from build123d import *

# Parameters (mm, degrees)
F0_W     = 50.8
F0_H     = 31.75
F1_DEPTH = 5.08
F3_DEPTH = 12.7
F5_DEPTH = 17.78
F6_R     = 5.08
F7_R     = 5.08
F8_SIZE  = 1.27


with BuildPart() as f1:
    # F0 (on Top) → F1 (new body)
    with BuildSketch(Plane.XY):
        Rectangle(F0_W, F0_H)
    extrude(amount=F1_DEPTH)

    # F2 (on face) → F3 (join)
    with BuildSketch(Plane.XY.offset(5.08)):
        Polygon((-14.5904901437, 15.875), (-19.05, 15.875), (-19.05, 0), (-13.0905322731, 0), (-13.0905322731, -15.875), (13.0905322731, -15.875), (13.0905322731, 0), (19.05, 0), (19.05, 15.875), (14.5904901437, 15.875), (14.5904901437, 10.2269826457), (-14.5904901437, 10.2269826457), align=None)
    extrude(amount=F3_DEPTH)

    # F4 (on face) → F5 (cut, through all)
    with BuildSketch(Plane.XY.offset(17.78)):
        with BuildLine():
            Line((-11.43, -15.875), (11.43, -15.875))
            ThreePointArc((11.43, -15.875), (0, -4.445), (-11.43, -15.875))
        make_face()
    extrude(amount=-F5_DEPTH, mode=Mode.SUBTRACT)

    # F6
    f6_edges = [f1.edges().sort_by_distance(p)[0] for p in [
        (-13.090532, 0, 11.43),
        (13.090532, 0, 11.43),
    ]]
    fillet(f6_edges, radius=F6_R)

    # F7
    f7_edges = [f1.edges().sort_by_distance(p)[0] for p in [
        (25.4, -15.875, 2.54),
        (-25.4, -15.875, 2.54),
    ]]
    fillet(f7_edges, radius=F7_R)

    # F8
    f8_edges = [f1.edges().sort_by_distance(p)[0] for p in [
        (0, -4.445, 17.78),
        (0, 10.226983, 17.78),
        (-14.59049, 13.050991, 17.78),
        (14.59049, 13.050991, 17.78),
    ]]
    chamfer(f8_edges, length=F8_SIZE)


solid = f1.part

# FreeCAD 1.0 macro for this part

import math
import FreeCAD as App
import Part
import Sketcher

V = App.Vector
Q = App.Units.Quantity


def edges_at(feature, points):
    """Names of the edges that pass closest to the given points."""
    edges = feature.Shape.Edges
    near = lambda p: min(range(len(edges)), key=lambda i: edges[i].distToShape(Part.Vertex(*p))[0])
    return sorted({f"Edge{near(p) + 1}" for p in points})

doc = App.newDocument("Part")
params = doc.addObject("Spreadsheet::Sheet", "Params")
for row, (alias, value) in enumerate([
    ("sketch1_width", "2 in"),
    ("sketch1_height", "1.25 in"),
    ("pad1_length", "0.2 in"),
    ("sketch2_height", "0.625 in"),
    ("pad2_length", "0.5 in"),
    ("sketch3_radius", "0.45 in"),
    ("fillet_radius", "0.2 in"),
    ("fillet2_radius", "0.2 in"),
    ("chamfer_size", "0.05 in"),
], start=1):
    params.set(f"A{row}", alias)
    params.set(f"B{row}", "=" + value)
    params.setAlias(f"B{row}", alias)

body = doc.addObject("PartDesign::Body", "Body")

# Sketch on XY plane
sketch1 = body.newObject("Sketcher::SketchObject", "Sketch")
sketch1.AttachmentSupport = (doc.getObject("XY_Plane"), [""])
sketch1.MapMode = "FlatFace"
sketch1.addGeometry([
    Part.LineSegment(V(-25, 16, 0), V(-25, -16, 0)),
    Part.LineSegment(V(-25, -16, 0), V(25, -16, 0)),
    Part.LineSegment(V(25, -16, 0), V(25, 16, 0)),
    Part.LineSegment(V(25, 16, 0), V(-25, 16, 0)),
], False)
sketch1.addConstraint([
    Sketcher.Constraint("Coincident", 0, 2, 1, 1),
    Sketcher.Constraint("Coincident", 1, 2, 2, 1),
    Sketcher.Constraint("Coincident", 2, 2, 3, 1),
    Sketcher.Constraint("Coincident", 3, 2, 0, 1),
    Sketcher.Constraint("Vertical", 0),
    Sketcher.Constraint("Horizontal", 1),
    Sketcher.Constraint("Vertical", 2),
    Sketcher.Constraint("Horizontal", 3),
    Sketcher.Constraint("Symmetric", 0, 2, 2, 2, -1, 1),
    Sketcher.Constraint("DistanceX", 1, 1, 1, 2, Q("2 in")),
    Sketcher.Constraint("DistanceY", 0, 2, 0, 1, Q("1.25 in")),
])
sketch1.setExpression("Constraints[9]", "Params.sketch1_width")
sketch1.setExpression("Constraints[10]", "Params.sketch1_height")
pad1 = body.newObject("PartDesign::Pad", "Pad")
pad1.Profile = sketch1
pad1.setExpression("Length", "Params.pad1_length")

# Sketch on XY plane
sketch2 = body.newObject("Sketcher::SketchObject", "Sketch001")
sketch2.AttachmentSupport = (doc.getObject("XY_Plane"), [""])
sketch2.MapMode = "FlatFace"
sketch2.AttachmentOffset = App.Placement(V(0, 0, 0.2 * 25.4), App.Rotation())
sketch2.addGeometry([
    Part.LineSegment(V(-14.6, 15.9, 0), V(-19.1, 15.9, 0)),  # 0
    Part.LineSegment(V(-19.1, 15.9, 0), V(-19.1, 0, 0)),  # 1
    Part.LineSegment(V(-19.1, 0, 0), V(-13.1, 0, 0)),  # 2
    Part.LineSegment(V(-13.1, 0, 0), V(-13.1, -15.9, 0)),  # 3
    Part.LineSegment(V(-13.1, -15.9, 0), V(13.1, -15.9, 0)),  # 4
    Part.LineSegment(V(13.1, -15.9, 0), V(13.1, 0, 0)),  # 5
    Part.LineSegment(V(13.1, 0, 0), V(19.1, 0, 0)),  # 6
    Part.LineSegment(V(19.1, 0, 0), V(19.1, 15.9, 0)),  # 7
    Part.LineSegment(V(19.1, 15.9, 0), V(14.6, 15.9, 0)),  # 8
    Part.LineSegment(V(14.6, 15.9, 0), V(14.6, 10.2, 0)),  # 9
    Part.LineSegment(V(14.6, 10.2, 0), V(-14.6, 10.2, 0)),  # 10
    Part.LineSegment(V(-14.6, 10.2, 0), V(-14.6, 15.9, 0)),  # 11
], False)
sketch2.addConstraint([
    Sketcher.Constraint("Coincident", 0, 2, 1, 1),
    Sketcher.Constraint("Coincident", 1, 2, 2, 1),
    Sketcher.Constraint("Coincident", 2, 2, 3, 1),
    Sketcher.Constraint("Coincident", 3, 2, 4, 1),
    Sketcher.Constraint("Coincident", 4, 2, 5, 1),
    Sketcher.Constraint("Coincident", 5, 2, 6, 1),
    Sketcher.Constraint("Coincident", 6, 2, 7, 1),
    Sketcher.Constraint("Coincident", 7, 2, 8, 1),
    Sketcher.Constraint("Coincident", 8, 2, 9, 1),
    Sketcher.Constraint("Coincident", 9, 2, 10, 1),
    Sketcher.Constraint("Coincident", 10, 2, 11, 1),
    Sketcher.Constraint("Coincident", 11, 2, 0, 1),
    Sketcher.Constraint("Horizontal", 0),
    Sketcher.Constraint("Vertical", 1),
    Sketcher.Constraint("Horizontal", 2),
    Sketcher.Constraint("Vertical", 3),
    Sketcher.Constraint("Horizontal", 4),
    Sketcher.Constraint("Vertical", 5),
    Sketcher.Constraint("Horizontal", 6),
    Sketcher.Constraint("Vertical", 7),
    Sketcher.Constraint("Horizontal", 8),
    Sketcher.Constraint("Vertical", 9),
    Sketcher.Constraint("Horizontal", 10),
    Sketcher.Constraint("Vertical", 11),
    Sketcher.Constraint("Symmetric", 2, 2, 5, 2, -1, 1),
    Sketcher.Constraint("Symmetric", 1, 2, 6, 2, -2),
    Sketcher.Constraint("Symmetric", 8, 2, 11, 2, -2),
    Sketcher.Constraint("Equal", 1, 3),
    Sketcher.Constraint("DistanceX", 1, 2, 6, 2, Q("1.5 in")),
    Sketcher.Constraint("DistanceY", 1, 2, 1, 1, Q("0.625 in")),
    Sketcher.Constraint("DistanceX", 0, 2, 0, 1, Q("4.45951 mm")),
    Sketcher.Constraint("DistanceX", 2, 1, 2, 2, Q("5.959468 mm")),
    Sketcher.Constraint("DistanceY", 9, 2, 9, 1, Q("5.648017 mm")),
])
sketch2.setExpression("Constraints[29]", "Params.sketch2_height")
pad2 = body.newObject("PartDesign::Pad", "Pad001")
pad2.Profile = sketch2
pad2.setExpression("Length", "Params.pad2_length")

# Sketch on XY plane
sketch3 = body.newObject("Sketcher::SketchObject", "Sketch002")
sketch3.AttachmentSupport = (doc.getObject("XY_Plane"), [""])
sketch3.MapMode = "FlatFace"
sketch3.AttachmentOffset = App.Placement(V(0, 0, 0.7 * 25.4), App.Rotation())
sketch3.addGeometry([
    Part.LineSegment(V(-11, -16, 0), V(11, -16, 0)),
    Part.ArcOfCircle(Part.Circle(V(0, -16, 0), V(0, 0, 1), 11), math.radians(0), math.radians(180)),
], False)
sketch3.addConstraint([
    Sketcher.Constraint("Coincident", 0, 1, 1, 2),
    Sketcher.Constraint("Coincident", 1, 1, 0, 2),
    Sketcher.Constraint("Horizontal", 0),
    Sketcher.Constraint("PointOnObject", 1, 3, -2),
    Sketcher.Constraint("Horizontal", 1, 3, 0, 1),
    Sketcher.Constraint("Radius", 1, Q("0.45 in")),
    Sketcher.Constraint("DistanceY", 1, 3, -1, 1, Q("0.625 in")),
])
sketch3.setExpression("Constraints[5]", "Params.sketch3_radius")
pocket1 = body.newObject("PartDesign::Pocket", "Pocket")
pocket1.Profile = sketch3
pocket1.Type = "ThroughAll"
doc.recompute()

fillet = body.newObject("PartDesign::Fillet", "Fillet")
fillet.Base = (pocket1, edges_at(pocket1, [(-13.091, 0, 11.43), (13.091, 0, 11.43)]))
fillet.setExpression("Radius", "Params.fillet_radius")
doc.recompute()

fillet2 = body.newObject("PartDesign::Fillet", "Fillet001")
fillet2.Base = (fillet, edges_at(fillet, [(25.4, -15.875, 2.54), (-25.4, -15.875, 2.54)]))
fillet2.setExpression("Radius", "Params.fillet2_radius")
doc.recompute()

chamfer = body.newObject("PartDesign::Chamfer", "Chamfer")
chamfer.Base = (fillet2, edges_at(fillet2, [
    (0, -4.445, 17.78),
    (0, 10.227, 17.78),
    (-14.59, 13.051, 17.78),
    (14.59, 13.051, 17.78),
]))
chamfer.setExpression("Size", "Params.chamfer_size")

doc.recompute()
